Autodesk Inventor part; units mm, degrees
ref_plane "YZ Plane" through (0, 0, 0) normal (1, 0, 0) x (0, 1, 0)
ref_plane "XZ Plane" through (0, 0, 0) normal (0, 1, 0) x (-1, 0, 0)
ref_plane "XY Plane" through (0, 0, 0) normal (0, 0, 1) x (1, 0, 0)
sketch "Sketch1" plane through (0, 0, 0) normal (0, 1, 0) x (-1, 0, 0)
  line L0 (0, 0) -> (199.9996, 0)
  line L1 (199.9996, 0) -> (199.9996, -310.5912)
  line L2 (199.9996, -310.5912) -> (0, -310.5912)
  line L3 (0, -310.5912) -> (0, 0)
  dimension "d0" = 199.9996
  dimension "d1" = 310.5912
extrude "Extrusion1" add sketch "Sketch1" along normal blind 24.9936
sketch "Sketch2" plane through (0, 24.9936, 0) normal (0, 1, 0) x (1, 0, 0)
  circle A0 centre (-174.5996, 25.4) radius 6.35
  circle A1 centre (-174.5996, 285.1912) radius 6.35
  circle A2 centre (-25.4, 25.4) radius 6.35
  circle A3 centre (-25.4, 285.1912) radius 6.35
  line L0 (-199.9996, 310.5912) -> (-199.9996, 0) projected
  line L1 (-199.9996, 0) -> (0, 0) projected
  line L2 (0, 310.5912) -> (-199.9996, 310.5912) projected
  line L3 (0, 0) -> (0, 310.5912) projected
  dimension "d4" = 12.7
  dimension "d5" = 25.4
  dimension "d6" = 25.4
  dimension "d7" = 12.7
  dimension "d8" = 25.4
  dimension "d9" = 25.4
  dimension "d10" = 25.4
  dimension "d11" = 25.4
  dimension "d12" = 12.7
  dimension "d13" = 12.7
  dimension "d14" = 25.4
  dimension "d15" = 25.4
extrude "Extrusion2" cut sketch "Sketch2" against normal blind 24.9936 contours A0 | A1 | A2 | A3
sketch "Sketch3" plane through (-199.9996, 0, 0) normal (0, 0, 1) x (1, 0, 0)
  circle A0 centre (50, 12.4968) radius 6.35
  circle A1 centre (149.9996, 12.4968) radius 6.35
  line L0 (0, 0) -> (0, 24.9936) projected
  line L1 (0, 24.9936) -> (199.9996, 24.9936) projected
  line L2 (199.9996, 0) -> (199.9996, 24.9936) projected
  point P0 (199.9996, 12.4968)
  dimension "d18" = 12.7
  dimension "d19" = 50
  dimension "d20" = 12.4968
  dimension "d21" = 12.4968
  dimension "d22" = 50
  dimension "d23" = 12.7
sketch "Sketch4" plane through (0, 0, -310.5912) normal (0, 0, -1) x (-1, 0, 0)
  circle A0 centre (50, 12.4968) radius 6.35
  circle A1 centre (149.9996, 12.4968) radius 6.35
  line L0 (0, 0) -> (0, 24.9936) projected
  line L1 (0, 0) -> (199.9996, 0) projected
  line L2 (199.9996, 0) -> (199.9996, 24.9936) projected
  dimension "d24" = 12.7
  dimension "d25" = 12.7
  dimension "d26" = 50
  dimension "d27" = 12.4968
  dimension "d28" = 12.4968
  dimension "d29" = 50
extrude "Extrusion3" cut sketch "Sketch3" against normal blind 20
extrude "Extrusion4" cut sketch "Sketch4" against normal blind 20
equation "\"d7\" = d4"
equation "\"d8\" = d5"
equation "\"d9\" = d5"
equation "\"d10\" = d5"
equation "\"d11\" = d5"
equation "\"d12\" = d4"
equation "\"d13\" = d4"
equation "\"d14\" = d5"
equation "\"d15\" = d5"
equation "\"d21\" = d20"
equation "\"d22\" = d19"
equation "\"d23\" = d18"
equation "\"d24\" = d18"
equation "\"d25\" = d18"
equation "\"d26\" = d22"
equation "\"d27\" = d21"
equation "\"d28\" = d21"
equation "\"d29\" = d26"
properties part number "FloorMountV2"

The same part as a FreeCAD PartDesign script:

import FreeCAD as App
import Part
import Sketcher
from FreeCAD import Vector
Q = App.Units.Quantity

doc = App.newDocument("Part")
body = doc.addObject("PartDesign::Body", "Body")

sketch1 = body.newObject("Sketcher::SketchObject", "Sketch")
sketch1.AttachmentSupport = (doc.getObject("XZ_Plane"), [""])
sketch1.MapMode = "FlatFace"
sketch1.addGeometry(Part.LineSegment(Vector(-200, 0, 0), Vector(0, 0, 0)), False)
sketch1.addGeometry(Part.LineSegment(Vector(0, 0, 0), Vector(0, -311, 0)), False)
sketch1.addGeometry(Part.LineSegment(Vector(0, -311, 0), Vector(-200, -311, 0)), False)
sketch1.addGeometry(Part.LineSegment(Vector(-200, -311, 0), Vector(-200, 0, 0)), False)
sketch1.addConstraint(Sketcher.Constraint("Coincident", 0, 2, 1, 1))
sketch1.addConstraint(Sketcher.Constraint("Coincident", 1, 2, 2, 1))
sketch1.addConstraint(Sketcher.Constraint("Coincident", 2, 2, 3, 1))
sketch1.addConstraint(Sketcher.Constraint("Coincident", 3, 2, 0, 1))
sketch1.addConstraint(Sketcher.Constraint("Horizontal", 0))
sketch1.addConstraint(Sketcher.Constraint("Vertical", 1))
sketch1.addConstraint(Sketcher.Constraint("Horizontal", 2))
sketch1.addConstraint(Sketcher.Constraint("Vertical", 3))
sketch1.addConstraint(Sketcher.Constraint("Coincident", 0, 2, -1, 1))
sketch1.addConstraint(Sketcher.Constraint("DistanceX", 0, 1, 0, 2, Q("7.874 in")))
sketch1.addConstraint(Sketcher.Constraint("DistanceY", 1, 2, 1, 1, Q("12.228 in")))
pad1 = body.newObject("PartDesign::Pad", "Pad")
pad1.Profile = sketch1
pad1.Length = Q("0.984 in")
pad1.Reversed = True

sketch2 = body.newObject("Sketcher::SketchObject", "Sketch001")
sketch2.AttachmentSupport = (doc.getObject("XZ_Plane"), [""])
sketch2.MapMode = "FlatFace"
sketch2.AttachmentOffset = App.Placement(Vector(0, 0, -0.984 * 25.4), App.Rotation())
sketch2.addGeometry(Part.Circle(Vector(-175, -25, 0), Vector(0, 0, 1), 6), False)
sketch2.addGeometry(Part.Circle(Vector(-175, -285, 0), Vector(0, 0, 1), 6), False)
sketch2.addGeometry(Part.Circle(Vector(-25, -25, 0), Vector(0, 0, 1), 6), False)
sketch2.addGeometry(Part.Circle(Vector(-25, -285, 0), Vector(0, 0, 1), 6), False)
sketch2.addConstraint(Sketcher.Constraint("Equal", 0, 1))
sketch2.addConstraint(Sketcher.Constraint("Equal", 1, 2))
sketch2.addConstraint(Sketcher.Constraint("Equal", 2, 3))
sketch2.addConstraint(Sketcher.Constraint("Horizontal", 0, 3, 2, 3))
sketch2.addConstraint(Sketcher.Constraint("Horizontal", 1, 3, 3, 3))
sketch2.addConstraint(Sketcher.Constraint("Vertical", 0, 3, 1, 3))
sketch2.addConstraint(Sketcher.Constraint("Vertical", 2, 3, 3, 3))
sketch2.addConstraint(Sketcher.Constraint("Diameter", 0, Q("0.5 in")))
sketch2.addConstraint(Sketcher.Constraint("DistanceY", 0, 3, -1, 1, Q("1 in")))
sketch2.addConstraint(Sketcher.Constraint("DistanceX", 2, 3, -1, 1, Q("1 in")))
sketch2.addConstraint(Sketcher.Constraint("DistanceX", 0, 3, -1, 1, Q("6.874 in")))
sketch2.addConstraint(Sketcher.Constraint("DistanceY", 1, 3, -1, 1, Q("11.228 in")))
pocket1 = body.newObject("PartDesign::Pocket", "Pocket")
pocket1.Profile = sketch2
pocket1.Length = Q("0.984 in")
pocket1.Reversed = True

sketch3 = body.newObject("Sketcher::SketchObject", "Sketch002")
sketch3.AttachmentSupport = (doc.getObject("XY_Plane"), [""])
sketch3.MapMode = "FlatFace"
sketch3.addGeometry(Part.Circle(Vector(-150, 12, 0), Vector(0, 0, 1), 6), False)
sketch3.addGeometry(Part.Circle(Vector(-50, 12, 0), Vector(0, 0, 1), 6), False)
sketch3.addConstraint(Sketcher.Constraint("Equal", 0, 1))
sketch3.addConstraint(Sketcher.Constraint("Horizontal", 0, 3, 1, 3))
sketch3.addConstraint(Sketcher.Constraint("Diameter", 0, Q("0.5 in")))
sketch3.addConstraint(Sketcher.Constraint("DistanceY", -1, 1, 0, 3, Q("0.492 in")))
sketch3.addConstraint(Sketcher.Constraint("DistanceX", 1, 3, -1, 1, Q("1.9685 in")))
sketch3.addConstraint(Sketcher.Constraint("DistanceX", 0, 3, 1, 3, Q("3.937 in")))
pocket2 = body.newObject("PartDesign::Pocket", "Pocket001")
pocket2.Profile = sketch3
pocket2.Length = Q("0.7874016 in")

sketch4 = body.newObject("Sketcher::SketchObject", "Sketch003")
sketch4.AttachmentSupport = (doc.getObject("XY_Plane"), [""])
sketch4.MapMode = "FlatFace"
sketch4.AttachmentOffset = App.Placement(Vector(0, 0, -12.228 * 25.4), App.Rotation())
sketch4.addGeometry(Part.Circle(Vector(-50, 12, 0), Vector(0, 0, 1), 6), False)
sketch4.addGeometry(Part.Circle(Vector(-150, 12, 0), Vector(0, 0, 1), 6), False)
sketch4.addConstraint(Sketcher.Constraint("Equal", 0, 1))
sketch4.addConstraint(Sketcher.Constraint("Horizontal", 0, 3, 1, 3))
sketch4.addConstraint(Sketcher.Constraint("Diameter", 0, Q("0.5 in")))
sketch4.addConstraint(Sketcher.Constraint("DistanceY", -1, 1, 0, 3, Q("0.492 in")))
sketch4.addConstraint(Sketcher.Constraint("DistanceX", 0, 3, -1, 1, Q("1.9685 in")))
sketch4.addConstraint(Sketcher.Constraint("DistanceX", 1, 3, 0, 3, Q("3.937 in")))
pocket3 = body.newObject("PartDesign::Pocket", "Pocket002")
pocket3.Profile = sketch4
pocket3.Length = Q("0.7874016 in")
pocket3.Reversed = True

doc.recompute()
